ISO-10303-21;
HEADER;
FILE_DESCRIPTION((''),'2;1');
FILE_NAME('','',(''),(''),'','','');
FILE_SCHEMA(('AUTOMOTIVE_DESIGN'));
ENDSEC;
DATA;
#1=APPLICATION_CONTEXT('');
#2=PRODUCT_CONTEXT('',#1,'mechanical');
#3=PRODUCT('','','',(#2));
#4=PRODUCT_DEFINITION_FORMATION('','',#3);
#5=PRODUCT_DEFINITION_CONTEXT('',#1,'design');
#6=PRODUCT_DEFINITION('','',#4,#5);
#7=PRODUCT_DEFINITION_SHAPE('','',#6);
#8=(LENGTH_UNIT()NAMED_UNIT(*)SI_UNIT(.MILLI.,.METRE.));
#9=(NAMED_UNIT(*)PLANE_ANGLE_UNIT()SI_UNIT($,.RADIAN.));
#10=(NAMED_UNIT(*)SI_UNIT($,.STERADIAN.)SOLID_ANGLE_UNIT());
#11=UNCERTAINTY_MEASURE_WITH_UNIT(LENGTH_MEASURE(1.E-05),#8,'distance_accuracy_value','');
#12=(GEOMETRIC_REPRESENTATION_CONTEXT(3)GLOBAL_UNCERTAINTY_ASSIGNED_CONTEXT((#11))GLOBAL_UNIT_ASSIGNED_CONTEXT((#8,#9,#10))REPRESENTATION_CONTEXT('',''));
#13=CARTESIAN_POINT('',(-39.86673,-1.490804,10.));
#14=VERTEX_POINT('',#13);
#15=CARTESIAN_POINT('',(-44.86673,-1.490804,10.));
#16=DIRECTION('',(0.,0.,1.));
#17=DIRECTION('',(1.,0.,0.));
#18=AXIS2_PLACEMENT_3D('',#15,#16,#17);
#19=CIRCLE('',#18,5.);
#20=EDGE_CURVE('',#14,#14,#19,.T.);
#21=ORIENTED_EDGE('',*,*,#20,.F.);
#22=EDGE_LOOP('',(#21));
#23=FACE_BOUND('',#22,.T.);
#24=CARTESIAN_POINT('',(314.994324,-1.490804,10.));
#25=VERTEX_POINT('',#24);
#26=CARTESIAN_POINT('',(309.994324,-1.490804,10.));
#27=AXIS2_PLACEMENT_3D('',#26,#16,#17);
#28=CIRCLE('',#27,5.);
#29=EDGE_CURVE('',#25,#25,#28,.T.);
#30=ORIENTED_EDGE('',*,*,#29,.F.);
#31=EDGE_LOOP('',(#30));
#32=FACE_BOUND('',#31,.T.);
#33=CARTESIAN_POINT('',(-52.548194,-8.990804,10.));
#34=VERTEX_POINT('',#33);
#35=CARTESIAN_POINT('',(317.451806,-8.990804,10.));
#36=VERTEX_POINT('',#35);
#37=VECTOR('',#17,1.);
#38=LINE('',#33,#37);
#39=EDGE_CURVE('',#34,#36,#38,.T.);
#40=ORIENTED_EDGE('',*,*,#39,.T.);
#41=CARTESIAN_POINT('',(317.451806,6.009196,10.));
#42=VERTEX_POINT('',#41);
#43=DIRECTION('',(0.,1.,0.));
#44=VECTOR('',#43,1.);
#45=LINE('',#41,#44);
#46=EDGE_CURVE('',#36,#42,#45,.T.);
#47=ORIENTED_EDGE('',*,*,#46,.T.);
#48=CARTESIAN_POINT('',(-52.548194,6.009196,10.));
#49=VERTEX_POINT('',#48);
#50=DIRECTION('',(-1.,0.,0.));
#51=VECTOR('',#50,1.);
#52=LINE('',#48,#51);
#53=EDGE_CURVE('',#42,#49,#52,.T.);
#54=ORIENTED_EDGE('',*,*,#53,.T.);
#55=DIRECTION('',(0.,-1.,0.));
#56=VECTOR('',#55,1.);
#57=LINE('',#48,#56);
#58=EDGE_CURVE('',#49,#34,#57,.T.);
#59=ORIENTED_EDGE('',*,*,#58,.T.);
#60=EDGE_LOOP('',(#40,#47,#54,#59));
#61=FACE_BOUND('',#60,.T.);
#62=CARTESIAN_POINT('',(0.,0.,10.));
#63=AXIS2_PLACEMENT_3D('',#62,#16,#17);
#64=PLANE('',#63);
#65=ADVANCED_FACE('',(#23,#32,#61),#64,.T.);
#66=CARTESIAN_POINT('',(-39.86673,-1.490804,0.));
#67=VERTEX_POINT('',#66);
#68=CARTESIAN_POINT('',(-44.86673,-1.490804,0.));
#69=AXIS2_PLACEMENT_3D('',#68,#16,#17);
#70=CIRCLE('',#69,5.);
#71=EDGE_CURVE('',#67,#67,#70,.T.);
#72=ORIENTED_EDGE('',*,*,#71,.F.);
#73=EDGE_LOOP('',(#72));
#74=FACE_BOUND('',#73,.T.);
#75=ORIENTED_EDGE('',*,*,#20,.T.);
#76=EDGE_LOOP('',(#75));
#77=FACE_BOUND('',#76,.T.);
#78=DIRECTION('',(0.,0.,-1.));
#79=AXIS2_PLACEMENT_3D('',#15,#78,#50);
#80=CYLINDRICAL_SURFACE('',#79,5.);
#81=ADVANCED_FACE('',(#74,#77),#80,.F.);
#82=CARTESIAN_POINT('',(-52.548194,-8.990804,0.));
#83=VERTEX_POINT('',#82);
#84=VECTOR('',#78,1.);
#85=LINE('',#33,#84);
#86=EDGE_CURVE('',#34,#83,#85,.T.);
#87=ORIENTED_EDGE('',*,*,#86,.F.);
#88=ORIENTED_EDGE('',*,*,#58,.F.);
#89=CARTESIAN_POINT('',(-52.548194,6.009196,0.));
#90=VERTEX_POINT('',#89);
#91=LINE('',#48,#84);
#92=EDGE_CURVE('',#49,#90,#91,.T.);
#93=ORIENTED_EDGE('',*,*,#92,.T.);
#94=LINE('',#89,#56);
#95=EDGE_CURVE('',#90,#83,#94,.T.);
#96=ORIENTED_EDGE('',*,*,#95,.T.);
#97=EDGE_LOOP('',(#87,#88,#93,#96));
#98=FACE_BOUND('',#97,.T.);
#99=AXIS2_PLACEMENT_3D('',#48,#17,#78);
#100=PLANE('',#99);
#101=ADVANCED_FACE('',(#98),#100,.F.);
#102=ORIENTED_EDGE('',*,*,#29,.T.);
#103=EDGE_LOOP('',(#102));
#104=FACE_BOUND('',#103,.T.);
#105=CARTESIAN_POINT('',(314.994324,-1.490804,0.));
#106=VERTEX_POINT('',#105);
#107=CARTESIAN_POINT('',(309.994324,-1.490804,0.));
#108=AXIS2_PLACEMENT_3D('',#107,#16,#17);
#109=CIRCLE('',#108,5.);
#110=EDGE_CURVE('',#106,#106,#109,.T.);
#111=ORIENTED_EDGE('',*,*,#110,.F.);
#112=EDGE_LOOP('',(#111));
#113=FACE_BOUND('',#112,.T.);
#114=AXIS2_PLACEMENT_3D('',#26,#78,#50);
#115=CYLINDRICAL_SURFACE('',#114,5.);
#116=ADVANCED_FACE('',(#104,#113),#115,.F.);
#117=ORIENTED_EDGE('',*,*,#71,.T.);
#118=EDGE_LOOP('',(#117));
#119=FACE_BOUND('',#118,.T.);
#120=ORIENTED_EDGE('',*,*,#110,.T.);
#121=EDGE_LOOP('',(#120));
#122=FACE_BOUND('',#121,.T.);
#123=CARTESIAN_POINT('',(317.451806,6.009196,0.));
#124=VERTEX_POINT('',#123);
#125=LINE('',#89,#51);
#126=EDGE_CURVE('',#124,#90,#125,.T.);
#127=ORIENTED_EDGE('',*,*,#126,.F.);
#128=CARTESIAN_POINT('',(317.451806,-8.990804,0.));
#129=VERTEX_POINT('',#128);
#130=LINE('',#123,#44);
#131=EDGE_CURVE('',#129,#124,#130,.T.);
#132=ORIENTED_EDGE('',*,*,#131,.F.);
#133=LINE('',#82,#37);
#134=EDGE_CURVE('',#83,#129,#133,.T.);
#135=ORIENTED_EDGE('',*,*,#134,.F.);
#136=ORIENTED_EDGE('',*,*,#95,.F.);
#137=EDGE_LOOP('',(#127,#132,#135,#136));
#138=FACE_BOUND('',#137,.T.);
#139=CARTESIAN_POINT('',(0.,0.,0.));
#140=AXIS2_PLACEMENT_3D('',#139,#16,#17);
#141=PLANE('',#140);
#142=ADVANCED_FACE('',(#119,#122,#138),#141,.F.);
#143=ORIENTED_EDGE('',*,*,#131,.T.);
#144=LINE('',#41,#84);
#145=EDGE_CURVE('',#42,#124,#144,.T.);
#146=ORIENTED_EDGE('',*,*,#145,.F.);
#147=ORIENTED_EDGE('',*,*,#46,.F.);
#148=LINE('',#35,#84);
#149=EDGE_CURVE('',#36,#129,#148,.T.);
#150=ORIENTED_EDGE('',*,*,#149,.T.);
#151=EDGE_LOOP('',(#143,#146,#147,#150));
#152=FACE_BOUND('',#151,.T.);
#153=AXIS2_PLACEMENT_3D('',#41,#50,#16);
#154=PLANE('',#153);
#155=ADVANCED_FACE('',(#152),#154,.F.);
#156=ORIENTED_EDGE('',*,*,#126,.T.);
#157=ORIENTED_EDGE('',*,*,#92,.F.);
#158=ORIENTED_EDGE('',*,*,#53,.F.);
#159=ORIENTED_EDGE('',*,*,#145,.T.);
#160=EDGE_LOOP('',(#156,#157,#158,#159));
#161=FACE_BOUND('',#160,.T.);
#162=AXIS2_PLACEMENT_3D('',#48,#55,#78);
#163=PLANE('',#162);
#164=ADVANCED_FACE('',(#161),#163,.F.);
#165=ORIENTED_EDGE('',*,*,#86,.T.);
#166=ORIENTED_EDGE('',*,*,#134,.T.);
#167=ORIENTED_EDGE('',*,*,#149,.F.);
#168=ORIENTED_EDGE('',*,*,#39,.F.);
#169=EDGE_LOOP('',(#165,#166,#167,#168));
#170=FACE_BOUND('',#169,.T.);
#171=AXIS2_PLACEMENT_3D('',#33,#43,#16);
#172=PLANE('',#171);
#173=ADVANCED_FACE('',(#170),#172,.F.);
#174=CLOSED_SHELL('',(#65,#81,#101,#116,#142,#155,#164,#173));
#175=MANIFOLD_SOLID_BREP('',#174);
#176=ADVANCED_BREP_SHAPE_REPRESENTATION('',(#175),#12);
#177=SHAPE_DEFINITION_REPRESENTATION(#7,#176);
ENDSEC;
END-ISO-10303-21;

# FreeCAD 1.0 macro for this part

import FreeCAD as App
import Part
import Sketcher

V = App.Vector


def add_polygon(sketch, points):
    """Adds a closed chain of lines whose ends are joined by coincident constraints."""
    first, n = sketch.GeometryCount, len(points)
    for a, b in zip(points, points[1:] + points[:1]):
        sketch.addGeometry(Part.LineSegment(App.Vector(*a, 0), App.Vector(*b, 0)), False)
    for i in range(n):
        sketch.addConstraint(Sketcher.Constraint("Coincident", first + i, 2, first + (i + 1) % n, 1))

doc = App.newDocument("Part")
body = doc.addObject("PartDesign::Body", "Body")

sketch1 = doc.addObject("Sketcher::SketchObject", "Sketch")
body.addObject(sketch1)
sketch1.AttachmentSupport = (doc.XY_Plane, [""])
sketch1.MapMode = "FlatFace"
add_polygon(sketch1, [(-52.548194, 6.009196), (-52.548194, -8.990804), (317.451806, -8.990804), (317.451806, 6.009196)])
sketch1.addGeometry(Part.Circle(V(-44.86673, -1.490804, 0), V(0, 0, 1), 5), False)
sketch1.addGeometry(Part.Circle(V(309.994324, -1.490804, 0), V(0, 0, 1), 5), False)
sketch1.addConstraint(Sketcher.Constraint("Vertical", 0))
sketch1.addConstraint(Sketcher.Constraint("Horizontal", 1))
sketch1.addConstraint(Sketcher.Constraint("Vertical", 2))
sketch1.addConstraint(Sketcher.Constraint("Horizontal", 3))
sketch1.addConstraint(Sketcher.Constraint("Equal", 4, 5))
sketch1.addConstraint(Sketcher.Constraint("Horizontal", 4, 3, 5, 3))
sketch1.addConstraint(Sketcher.Constraint("Diameter", 4, 10.0))
sketch1.addConstraint(Sketcher.Constraint("DistanceX", 1, 1, 1, 2, 370.0))
sketch1.addConstraint(Sketcher.Constraint("DistanceY", 0, 2, 0, 1, 15.0))
sketch1.addConstraint(Sketcher.Constraint("DistanceY", 0, 2, 4, 3, 7.5))
sketch1.addConstraint(Sketcher.Constraint("DistanceX", 4, 3, -1, 1, 44.86673))
sketch1.addConstraint(Sketcher.Constraint("DistanceX", 0, 2, 5, 3, 362.542518))
sketch1.addConstraint(Sketcher.Constraint("DistanceY", 4, 3, -1, 1, 1.490804))
sketch1.addConstraint(Sketcher.Constraint("DistanceX", -1, 1, 5, 3, 309.994324))
pad1 = doc.addObject("PartDesign::Pad", "Pad")
body.addObject(pad1)
pad1.Profile = sketch1
pad1.Length = 10

doc.recompute()
